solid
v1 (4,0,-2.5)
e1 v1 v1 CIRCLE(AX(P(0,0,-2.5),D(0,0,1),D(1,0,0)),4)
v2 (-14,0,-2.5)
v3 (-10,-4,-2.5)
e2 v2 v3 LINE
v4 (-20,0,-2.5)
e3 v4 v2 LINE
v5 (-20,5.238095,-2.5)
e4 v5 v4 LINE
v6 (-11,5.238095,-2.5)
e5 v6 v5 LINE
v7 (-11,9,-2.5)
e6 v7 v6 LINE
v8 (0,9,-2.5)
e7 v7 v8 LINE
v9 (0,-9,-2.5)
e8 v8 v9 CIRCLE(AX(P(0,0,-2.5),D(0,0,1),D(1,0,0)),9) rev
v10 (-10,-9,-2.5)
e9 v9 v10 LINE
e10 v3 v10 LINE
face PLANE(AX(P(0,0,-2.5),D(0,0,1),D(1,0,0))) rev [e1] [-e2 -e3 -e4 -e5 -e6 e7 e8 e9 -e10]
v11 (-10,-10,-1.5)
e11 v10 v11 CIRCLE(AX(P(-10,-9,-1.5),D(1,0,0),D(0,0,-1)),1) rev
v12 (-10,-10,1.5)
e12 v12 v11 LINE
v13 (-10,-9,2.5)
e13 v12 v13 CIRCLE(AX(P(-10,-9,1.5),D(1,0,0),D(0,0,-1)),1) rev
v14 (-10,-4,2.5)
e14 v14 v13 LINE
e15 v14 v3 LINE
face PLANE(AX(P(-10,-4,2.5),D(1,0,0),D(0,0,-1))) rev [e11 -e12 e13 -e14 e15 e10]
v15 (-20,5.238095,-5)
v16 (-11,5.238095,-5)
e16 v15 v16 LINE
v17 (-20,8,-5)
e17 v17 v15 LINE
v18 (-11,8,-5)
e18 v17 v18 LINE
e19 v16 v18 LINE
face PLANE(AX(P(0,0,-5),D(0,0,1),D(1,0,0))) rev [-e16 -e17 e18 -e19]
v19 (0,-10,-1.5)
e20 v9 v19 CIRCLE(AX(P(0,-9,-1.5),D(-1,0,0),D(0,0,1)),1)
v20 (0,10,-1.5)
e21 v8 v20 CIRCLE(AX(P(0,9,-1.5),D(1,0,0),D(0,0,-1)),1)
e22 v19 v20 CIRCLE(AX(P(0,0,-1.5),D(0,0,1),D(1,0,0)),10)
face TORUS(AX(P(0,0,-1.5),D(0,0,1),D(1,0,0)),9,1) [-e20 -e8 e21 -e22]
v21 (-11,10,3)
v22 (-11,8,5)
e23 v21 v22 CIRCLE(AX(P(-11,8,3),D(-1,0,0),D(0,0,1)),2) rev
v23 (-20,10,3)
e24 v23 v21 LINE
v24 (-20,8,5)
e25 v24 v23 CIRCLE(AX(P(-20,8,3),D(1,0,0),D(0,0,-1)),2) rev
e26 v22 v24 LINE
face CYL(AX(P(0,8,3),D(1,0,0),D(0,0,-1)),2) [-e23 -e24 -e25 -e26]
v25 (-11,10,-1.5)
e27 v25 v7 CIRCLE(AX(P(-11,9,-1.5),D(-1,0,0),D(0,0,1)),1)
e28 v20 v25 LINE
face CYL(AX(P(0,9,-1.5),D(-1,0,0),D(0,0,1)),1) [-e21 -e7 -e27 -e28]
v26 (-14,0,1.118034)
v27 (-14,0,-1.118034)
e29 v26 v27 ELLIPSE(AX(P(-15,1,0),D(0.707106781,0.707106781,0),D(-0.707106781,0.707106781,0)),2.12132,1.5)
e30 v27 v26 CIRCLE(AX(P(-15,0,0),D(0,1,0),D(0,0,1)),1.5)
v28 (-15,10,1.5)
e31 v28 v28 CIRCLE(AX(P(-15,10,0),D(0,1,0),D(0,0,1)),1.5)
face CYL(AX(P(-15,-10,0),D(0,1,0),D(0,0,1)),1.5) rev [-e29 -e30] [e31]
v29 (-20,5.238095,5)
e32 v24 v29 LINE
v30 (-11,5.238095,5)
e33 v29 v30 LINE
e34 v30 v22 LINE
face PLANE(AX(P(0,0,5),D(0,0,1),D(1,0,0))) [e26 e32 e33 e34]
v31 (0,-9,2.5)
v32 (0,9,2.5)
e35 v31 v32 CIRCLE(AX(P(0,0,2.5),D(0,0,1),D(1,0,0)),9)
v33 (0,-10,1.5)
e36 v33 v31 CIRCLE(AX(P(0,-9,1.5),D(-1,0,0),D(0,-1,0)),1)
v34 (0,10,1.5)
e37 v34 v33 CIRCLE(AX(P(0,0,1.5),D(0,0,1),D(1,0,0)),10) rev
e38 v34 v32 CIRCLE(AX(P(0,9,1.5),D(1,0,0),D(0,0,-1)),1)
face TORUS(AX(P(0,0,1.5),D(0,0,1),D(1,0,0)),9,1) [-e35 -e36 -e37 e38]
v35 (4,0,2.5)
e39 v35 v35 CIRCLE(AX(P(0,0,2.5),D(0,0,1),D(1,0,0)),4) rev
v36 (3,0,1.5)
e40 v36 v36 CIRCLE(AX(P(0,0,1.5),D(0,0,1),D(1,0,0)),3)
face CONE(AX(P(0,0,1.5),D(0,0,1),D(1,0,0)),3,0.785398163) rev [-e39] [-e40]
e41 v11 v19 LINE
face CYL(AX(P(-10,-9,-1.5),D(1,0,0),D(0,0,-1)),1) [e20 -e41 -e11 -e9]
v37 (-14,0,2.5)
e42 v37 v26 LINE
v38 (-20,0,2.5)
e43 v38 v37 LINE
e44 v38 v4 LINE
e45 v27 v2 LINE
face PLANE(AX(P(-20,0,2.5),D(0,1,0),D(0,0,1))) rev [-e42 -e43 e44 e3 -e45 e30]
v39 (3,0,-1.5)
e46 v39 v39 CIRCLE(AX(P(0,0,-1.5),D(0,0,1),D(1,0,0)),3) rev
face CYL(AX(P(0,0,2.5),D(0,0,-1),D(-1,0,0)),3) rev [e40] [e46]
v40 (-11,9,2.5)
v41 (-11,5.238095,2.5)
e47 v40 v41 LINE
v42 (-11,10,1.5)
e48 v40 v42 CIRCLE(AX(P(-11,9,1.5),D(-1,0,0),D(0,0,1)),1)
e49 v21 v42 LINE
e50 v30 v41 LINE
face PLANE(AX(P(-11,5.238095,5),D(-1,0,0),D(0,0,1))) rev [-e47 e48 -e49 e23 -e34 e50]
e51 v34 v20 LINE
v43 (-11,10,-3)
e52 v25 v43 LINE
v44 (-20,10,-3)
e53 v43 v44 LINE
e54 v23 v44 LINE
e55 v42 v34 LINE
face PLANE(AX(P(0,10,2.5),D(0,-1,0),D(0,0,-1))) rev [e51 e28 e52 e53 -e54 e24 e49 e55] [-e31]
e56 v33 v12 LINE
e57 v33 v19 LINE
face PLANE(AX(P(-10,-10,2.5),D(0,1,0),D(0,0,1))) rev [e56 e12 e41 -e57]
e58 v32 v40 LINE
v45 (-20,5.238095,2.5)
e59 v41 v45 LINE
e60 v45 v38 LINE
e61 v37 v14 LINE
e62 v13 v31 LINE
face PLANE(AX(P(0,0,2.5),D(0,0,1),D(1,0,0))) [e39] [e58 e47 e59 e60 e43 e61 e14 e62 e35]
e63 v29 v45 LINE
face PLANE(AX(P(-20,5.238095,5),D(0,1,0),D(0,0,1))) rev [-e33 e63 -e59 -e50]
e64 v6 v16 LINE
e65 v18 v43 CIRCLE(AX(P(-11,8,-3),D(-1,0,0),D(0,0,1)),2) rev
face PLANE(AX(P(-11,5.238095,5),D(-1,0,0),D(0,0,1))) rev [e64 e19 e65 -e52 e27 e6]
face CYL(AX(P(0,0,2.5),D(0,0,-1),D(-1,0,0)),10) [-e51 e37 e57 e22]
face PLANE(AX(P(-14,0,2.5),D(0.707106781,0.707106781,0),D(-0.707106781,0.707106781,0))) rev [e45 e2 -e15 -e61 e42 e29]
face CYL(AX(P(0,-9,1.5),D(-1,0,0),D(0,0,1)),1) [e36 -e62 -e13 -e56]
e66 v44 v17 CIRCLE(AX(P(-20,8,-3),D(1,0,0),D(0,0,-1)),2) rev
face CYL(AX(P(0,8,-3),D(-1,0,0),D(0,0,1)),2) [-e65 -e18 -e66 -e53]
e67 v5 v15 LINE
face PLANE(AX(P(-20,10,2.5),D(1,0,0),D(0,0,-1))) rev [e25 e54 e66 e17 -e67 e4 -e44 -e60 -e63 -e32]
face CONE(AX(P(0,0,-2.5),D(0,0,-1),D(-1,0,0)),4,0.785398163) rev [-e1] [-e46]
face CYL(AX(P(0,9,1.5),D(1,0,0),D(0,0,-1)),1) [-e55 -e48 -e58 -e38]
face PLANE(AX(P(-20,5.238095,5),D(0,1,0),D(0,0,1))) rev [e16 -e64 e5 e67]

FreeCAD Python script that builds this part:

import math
import FreeCAD as App
import Part
import Sketcher
from FreeCAD import Vector


def edges_at(feature, points):
    """Names of the edges that pass closest to the given points."""
    edges = feature.Shape.Edges
    near = lambda p: min(range(len(edges)), key=lambda i: edges[i].distToShape(Part.Vertex(*p))[0])
    return sorted({f"Edge{near(p) + 1}" for p in points})


def add_polygon(sketch, points):
    """Adds a closed chain of lines whose ends are joined by coincident constraints."""
    first, n = sketch.GeometryCount, len(points)
    for a, b in zip(points, points[1:] + points[:1]):
        sketch.addGeometry(Part.LineSegment(App.Vector(*a, 0), App.Vector(*b, 0)), False)
    for i in range(n):
        sketch.addConstraint(Sketcher.Constraint("Coincident", first + i, 2, first + (i + 1) % n, 1))

doc = App.newDocument("Part")
body = doc.addObject("PartDesign::Body", "Body")

# Sketch on XY plane
sketch1 = body.newObject("Sketcher::SketchObject", "Sketch")
sketch1.AttachmentSupport = (doc.getObject("XY_Plane"), [""])
sketch1.MapMode = "FlatFace"
sketch1.addGeometry([
    Part.LineSegment(Vector(0, 10, 0), Vector(-20, 10, 0)),  # 0
    Part.LineSegment(Vector(-20, 10, 0), Vector(-20, 0, 0)),  # 1
    Part.LineSegment(Vector(-20, 0, 0), Vector(-14, 0, 0)),  # 2
    Part.LineSegment(Vector(-14, 0, 0), Vector(-10, -4, 0)),  # 3
    Part.LineSegment(Vector(-10, -4, 0), Vector(-10, -10, 0)),  # 4
    Part.LineSegment(Vector(-10, -10, 0), Vector(0, -10, 0)),  # 5
    Part.ArcOfCircle(Part.Circle(Vector(0, 0, 0), Vector(0, 0, 1), 10), math.radians(-90), math.radians(90)),  # 6
    Part.Circle(Vector(0, 0, 0), Vector(0, 0, 1), 3),  # 7
], False)
sketch1.addConstraint([
    Sketcher.Constraint("Coincident", 0, 2, 1, 1),
    Sketcher.Constraint("Coincident", 1, 2, 2, 1),
    Sketcher.Constraint("Coincident", 2, 2, 3, 1),
    Sketcher.Constraint("Coincident", 3, 2, 4, 1),
    Sketcher.Constraint("Coincident", 4, 2, 5, 1),
    Sketcher.Constraint("Tangent", 5, 2, 6, 1),
    Sketcher.Constraint("Tangent", 6, 2, 0, 1),
    Sketcher.Constraint("Horizontal", 0),
    Sketcher.Constraint("Vertical", 1),
    Sketcher.Constraint("Horizontal", 2),
    Sketcher.Constraint("Vertical", 4),
    Sketcher.Constraint("Horizontal", 5),
    Sketcher.Constraint("Coincident", 6, 3, -1, 1),
    Sketcher.Constraint("Coincident", 7, 3, -1, 1),
    Sketcher.Constraint("PointOnObject", 1, 2, -1),
    Sketcher.Constraint("Equal", 5, 1),
    Sketcher.Constraint("Equal", 2, 4),
    Sketcher.Constraint("Diameter", 7, 6.0),
    Sketcher.Constraint("Radius", 6, 10.0),
    Sketcher.Constraint("DistanceX", 0, 2, 0, 1, 20.0),
    Sketcher.Constraint("DistanceX", 2, 1, 2, 2, 6.0),
])
pad1 = body.newObject("PartDesign::Pad", "Pad")
pad1.Profile = sketch1
pad1.Length = 5
pad1.Midplane = True

# Sketch on XY plane
sketch2 = body.newObject("Sketcher::SketchObject", "Sketch001")
sketch2.AttachmentSupport = (doc.getObject("XY_Plane"), [""])
sketch2.MapMode = "FlatFace"
add_polygon(sketch2, [(-20, 10), (-20, 5.238095), (-11, 5.238095), (-11, 10)])  # lines 0-3
sketch2.addConstraint([
    Sketcher.Constraint("Vertical", 0),
    Sketcher.Constraint("Horizontal", 1),
    Sketcher.Constraint("Vertical", 2),
    Sketcher.Constraint("Horizontal", 3),
    Sketcher.Constraint("DistanceX", 1, 1, 1, 2, 9.0),
    Sketcher.Constraint("DistanceX", 0, 2, -1, 1, 20.0),
    Sketcher.Constraint("DistanceY", -1, 1, 2, 2, 10.0),
    Sketcher.Constraint("DistanceY", 0, 2, 0, 1, 4.761905),
])
pad2 = body.newObject("PartDesign::Pad", "Pad001")
pad2.Profile = sketch2
pad2.Length = 10
pad2.Midplane = True
doc.recompute()

fillet = body.newObject("PartDesign::Fillet", "Fillet")
fillet.Base = (pad2, edges_at(pad2, [(-15.5, 10, -5), (-15.5, 10, 5)]))
fillet.Radius = 2
doc.recompute()

chamfer = body.newObject("PartDesign::Chamfer", "Chamfer")
chamfer.Base = (fillet, edges_at(fillet, [(-3, 0, -2.5), (-3, 0, 2.5)]))
chamfer.Size = 1
doc.recompute()

fillet2 = body.newObject("PartDesign::Fillet", "Fillet001")
fillet2.Base = (chamfer, edges_at(chamfer, [
    (-5, -10, 2.5),
    (10, 0, 2.5),
    (-5.5, 10, 2.5),
    (-5.5, 10, -2.5),
    (10, 0, -2.5),
    (-5, -10, -2.5),
]))
fillet2.Radius = 1

# Sketch on XZ plane
sketch3 = body.newObject("Sketcher::SketchObject", "Sketch002")
sketch3.AttachmentSupport = (doc.getObject("XZ_Plane"), [""])
sketch3.MapMode = "FlatFace"
sketch3.AttachmentOffset = App.Placement(Vector(0, 0, -10), App.Rotation())
sketch3.addGeometry(Part.Circle(Vector(-15, 0, 0), Vector(0, 0, 1), 1.5), False)
sketch3.addConstraint([
    Sketcher.Constraint("PointOnObject", 0, 3, -1),
    Sketcher.Constraint("Diameter", 0, 3.0),
    Sketcher.Constraint("DistanceX", 0, 3, -1, 1, 15.0),
])
pocket1 = body.newObject("PartDesign::Pocket", "Pocket")
pocket1.Profile = sketch3
pocket1.Length = 20
pocket1.Reversed = True

doc.recompute()
